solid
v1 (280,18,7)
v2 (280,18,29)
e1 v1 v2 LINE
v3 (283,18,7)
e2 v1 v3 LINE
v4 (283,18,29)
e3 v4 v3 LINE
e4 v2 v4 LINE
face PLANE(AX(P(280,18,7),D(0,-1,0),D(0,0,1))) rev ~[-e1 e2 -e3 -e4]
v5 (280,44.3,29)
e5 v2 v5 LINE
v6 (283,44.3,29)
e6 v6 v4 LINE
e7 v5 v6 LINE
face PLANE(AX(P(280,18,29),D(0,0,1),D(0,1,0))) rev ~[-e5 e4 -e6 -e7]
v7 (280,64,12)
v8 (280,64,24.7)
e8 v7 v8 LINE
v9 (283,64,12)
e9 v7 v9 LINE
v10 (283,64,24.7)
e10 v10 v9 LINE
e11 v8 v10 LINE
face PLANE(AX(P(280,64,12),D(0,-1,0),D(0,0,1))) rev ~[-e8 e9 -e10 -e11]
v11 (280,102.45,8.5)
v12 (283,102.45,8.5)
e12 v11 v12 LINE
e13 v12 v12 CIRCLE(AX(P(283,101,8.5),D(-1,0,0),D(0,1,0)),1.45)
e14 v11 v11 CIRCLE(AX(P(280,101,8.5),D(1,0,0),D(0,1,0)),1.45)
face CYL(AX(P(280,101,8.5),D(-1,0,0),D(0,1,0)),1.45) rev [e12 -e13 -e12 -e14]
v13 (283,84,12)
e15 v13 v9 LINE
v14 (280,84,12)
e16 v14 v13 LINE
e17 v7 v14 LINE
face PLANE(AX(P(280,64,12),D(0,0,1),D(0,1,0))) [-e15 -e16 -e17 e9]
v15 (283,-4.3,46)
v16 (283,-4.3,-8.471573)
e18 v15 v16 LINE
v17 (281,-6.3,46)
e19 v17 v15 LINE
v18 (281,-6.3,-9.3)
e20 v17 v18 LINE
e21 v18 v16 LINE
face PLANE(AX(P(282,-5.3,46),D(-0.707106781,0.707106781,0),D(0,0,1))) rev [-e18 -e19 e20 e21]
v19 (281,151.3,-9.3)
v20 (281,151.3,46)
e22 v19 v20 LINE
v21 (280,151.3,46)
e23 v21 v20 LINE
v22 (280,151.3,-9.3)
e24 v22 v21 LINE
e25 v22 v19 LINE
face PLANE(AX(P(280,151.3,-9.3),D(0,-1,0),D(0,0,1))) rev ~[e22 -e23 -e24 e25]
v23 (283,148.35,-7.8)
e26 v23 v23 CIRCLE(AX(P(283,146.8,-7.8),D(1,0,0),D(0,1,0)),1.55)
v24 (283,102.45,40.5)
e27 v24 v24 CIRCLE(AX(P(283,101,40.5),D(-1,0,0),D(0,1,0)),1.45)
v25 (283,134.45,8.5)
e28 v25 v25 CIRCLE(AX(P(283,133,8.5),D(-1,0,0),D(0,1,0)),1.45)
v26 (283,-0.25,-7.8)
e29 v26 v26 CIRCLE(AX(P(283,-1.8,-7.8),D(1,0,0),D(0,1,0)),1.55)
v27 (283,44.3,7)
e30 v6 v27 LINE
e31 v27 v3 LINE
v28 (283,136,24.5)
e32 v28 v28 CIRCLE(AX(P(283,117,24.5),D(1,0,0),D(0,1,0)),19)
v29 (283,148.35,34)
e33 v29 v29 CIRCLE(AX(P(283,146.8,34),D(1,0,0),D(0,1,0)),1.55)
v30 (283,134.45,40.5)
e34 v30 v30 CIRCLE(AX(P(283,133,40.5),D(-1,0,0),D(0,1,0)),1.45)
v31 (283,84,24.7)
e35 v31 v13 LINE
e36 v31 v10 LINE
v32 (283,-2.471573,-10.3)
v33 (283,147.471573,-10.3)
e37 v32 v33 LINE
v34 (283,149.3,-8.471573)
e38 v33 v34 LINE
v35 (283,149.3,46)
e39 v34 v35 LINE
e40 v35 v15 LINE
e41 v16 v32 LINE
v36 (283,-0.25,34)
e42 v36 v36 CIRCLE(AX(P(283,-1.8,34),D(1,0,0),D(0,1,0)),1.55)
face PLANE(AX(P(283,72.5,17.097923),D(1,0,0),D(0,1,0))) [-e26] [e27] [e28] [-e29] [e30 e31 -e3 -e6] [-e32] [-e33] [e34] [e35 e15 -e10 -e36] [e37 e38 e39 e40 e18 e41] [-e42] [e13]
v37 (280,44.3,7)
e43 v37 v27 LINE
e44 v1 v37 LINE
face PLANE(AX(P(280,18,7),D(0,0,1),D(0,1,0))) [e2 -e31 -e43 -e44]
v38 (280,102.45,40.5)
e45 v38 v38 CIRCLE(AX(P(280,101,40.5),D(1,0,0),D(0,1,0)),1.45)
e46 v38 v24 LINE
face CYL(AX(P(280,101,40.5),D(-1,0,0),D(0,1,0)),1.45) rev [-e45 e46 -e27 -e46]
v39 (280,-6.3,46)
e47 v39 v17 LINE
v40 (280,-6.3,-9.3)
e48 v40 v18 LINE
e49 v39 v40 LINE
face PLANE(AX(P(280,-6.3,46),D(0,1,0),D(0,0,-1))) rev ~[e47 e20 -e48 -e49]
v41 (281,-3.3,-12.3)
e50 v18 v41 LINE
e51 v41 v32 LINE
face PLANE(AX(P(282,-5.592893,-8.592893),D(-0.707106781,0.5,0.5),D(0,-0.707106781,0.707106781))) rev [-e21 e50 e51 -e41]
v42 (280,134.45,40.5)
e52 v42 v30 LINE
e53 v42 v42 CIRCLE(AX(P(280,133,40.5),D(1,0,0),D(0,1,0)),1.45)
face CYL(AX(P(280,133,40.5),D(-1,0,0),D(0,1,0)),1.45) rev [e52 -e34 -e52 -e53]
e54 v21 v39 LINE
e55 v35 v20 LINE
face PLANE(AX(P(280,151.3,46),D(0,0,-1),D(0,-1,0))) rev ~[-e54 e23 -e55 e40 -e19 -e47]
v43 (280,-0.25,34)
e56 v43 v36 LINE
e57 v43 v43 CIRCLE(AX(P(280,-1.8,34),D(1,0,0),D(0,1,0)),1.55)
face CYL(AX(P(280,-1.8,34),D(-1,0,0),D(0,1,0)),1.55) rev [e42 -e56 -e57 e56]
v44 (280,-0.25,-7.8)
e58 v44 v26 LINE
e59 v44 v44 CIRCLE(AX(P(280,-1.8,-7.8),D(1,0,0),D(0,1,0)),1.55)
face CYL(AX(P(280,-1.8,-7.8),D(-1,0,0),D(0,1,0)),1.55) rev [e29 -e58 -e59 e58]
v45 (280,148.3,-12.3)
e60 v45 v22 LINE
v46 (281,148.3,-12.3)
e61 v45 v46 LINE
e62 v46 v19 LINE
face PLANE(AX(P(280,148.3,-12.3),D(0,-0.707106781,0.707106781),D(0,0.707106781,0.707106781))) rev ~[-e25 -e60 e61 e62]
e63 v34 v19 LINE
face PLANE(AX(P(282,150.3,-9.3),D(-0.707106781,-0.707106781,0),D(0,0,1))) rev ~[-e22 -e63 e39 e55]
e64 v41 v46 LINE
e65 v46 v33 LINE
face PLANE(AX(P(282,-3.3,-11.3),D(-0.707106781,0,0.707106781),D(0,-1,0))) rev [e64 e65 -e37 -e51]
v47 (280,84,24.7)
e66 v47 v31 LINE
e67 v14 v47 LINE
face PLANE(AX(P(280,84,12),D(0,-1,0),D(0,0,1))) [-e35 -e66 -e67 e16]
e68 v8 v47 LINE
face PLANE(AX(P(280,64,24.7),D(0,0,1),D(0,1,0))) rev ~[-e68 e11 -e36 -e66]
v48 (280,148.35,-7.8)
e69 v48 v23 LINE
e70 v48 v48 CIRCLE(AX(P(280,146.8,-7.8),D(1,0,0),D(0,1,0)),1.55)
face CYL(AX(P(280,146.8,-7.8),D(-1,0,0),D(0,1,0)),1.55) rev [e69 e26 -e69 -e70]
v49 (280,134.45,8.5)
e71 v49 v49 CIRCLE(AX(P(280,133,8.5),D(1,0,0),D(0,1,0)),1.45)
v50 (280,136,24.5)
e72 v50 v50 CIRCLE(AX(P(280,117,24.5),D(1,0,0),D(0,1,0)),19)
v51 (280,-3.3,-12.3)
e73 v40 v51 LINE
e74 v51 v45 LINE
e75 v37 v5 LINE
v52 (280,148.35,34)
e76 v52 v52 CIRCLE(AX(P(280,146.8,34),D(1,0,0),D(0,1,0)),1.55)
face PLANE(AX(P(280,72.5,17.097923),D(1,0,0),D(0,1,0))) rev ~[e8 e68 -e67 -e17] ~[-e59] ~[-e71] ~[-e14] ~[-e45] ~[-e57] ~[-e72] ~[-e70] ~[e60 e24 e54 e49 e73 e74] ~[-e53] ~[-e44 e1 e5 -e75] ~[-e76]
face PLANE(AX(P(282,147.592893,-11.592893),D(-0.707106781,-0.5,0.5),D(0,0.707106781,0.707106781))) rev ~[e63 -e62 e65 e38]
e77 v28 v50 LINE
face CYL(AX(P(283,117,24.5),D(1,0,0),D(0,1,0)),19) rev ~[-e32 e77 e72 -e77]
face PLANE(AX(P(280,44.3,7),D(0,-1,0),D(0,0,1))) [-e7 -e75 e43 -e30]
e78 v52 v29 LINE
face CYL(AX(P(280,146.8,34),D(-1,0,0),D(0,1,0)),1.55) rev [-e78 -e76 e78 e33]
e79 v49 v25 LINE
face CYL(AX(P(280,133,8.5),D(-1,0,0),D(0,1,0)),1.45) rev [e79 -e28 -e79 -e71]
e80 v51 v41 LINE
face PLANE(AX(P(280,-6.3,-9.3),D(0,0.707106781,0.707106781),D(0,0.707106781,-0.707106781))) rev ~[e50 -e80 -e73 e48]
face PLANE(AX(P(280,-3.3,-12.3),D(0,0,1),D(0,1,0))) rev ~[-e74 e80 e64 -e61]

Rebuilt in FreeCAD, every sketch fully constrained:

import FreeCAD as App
import Part
import Sketcher
from FreeCAD import Vector
Q = App.Units.Quantity


def edges_at(feature, points):
    """Names of the edges that pass closest to the given points."""
    edges = feature.Shape.Edges
    near = lambda p: min(range(len(edges)), key=lambda i: edges[i].distToShape(Part.Vertex(*p))[0])
    return sorted({f"Edge{near(p) + 1}" for p in points})


def add_polygon(sketch, points):
    """Adds a closed chain of lines whose ends are joined by coincident constraints."""
    first, n = sketch.GeometryCount, len(points)
    for a, b in zip(points, points[1:] + points[:1]):
        sketch.addGeometry(Part.LineSegment(App.Vector(*a, 0), App.Vector(*b, 0)), False)
    for i in range(n):
        sketch.addConstraint(Sketcher.Constraint("Coincident", first + i, 2, first + (i + 1) % n, 1))

doc = App.newDocument("Part")
body = doc.addObject("PartDesign::Body", "Body")

# Sketch on YZ plane
sketch1 = doc.addObject("Sketcher::SketchObject", "Sketch")
body.addObject(sketch1)
sketch1.AttachmentSupport = (doc.YZ_Plane, [""])
sketch1.MapMode = "FlatFace"
sketch1.AttachmentOffset = App.Placement(Vector(0, 0, 280), App.Rotation())
add_polygon(sketch1, [(-6.3, -9.3), (-3.3, -12.3), (148.3, -12.3), (151.3, -9.3), (151.3, 46), (-6.3, 46)])  # lines 0-5
sketch1.addGeometry(Part.Circle(Vector(-1.8, -7.8, 0), Vector(0, 0, 1), 1.55), False)  # 6
sketch1.addGeometry(Part.Circle(Vector(146.8, -7.8, 0), Vector(0, 0, 1), 1.55), False)  # 7
sketch1.addGeometry(Part.Circle(Vector(-1.8, 34, 0), Vector(0, 0, 1), 1.55), False)  # 8
sketch1.addGeometry(Part.Circle(Vector(146.8, 34, 0), Vector(0, 0, 1), 1.55), False)  # 9
sketch1.addConstraint(Sketcher.Constraint("Horizontal", 1))
sketch1.addConstraint(Sketcher.Constraint("Vertical", 3))
sketch1.addConstraint(Sketcher.Constraint("Horizontal", 4))
sketch1.addConstraint(Sketcher.Constraint("Vertical", 5))
sketch1.addConstraint(Sketcher.Constraint("Equal", 6, 7))
sketch1.addConstraint(Sketcher.Constraint("Equal", 7, 8))
sketch1.addConstraint(Sketcher.Constraint("Equal", 8, 9))
sketch1.addConstraint(Sketcher.Constraint("Perpendicular", 0, 2))
sketch1.addConstraint(Sketcher.Constraint("Horizontal", 6, 3, 7, 3))
sketch1.addConstraint(Sketcher.Constraint("Horizontal", 8, 3, 9, 3))
sketch1.addConstraint(Sketcher.Constraint("Horizontal", 2, 2, 5, 2))
sketch1.addConstraint(Sketcher.Constraint("Vertical", 6, 3, 8, 3))
sketch1.addConstraint(Sketcher.Constraint("Vertical", 7, 3, 9, 3))
sketch1.addConstraint(Sketcher.Constraint("Equal", 0, 2))
sketch1.addConstraint(Sketcher.Constraint("Diameter", 6, Q("3.1 mm")))
sketch1.addConstraint(Sketcher.Constraint("DistanceX", 1, 1, 1, 2, Q("151.6 mm")))
sketch1.addConstraint(Sketcher.Constraint("DistanceX", 4, 2, 4, 1, Q("157.6 mm")))
sketch1.addConstraint(Sketcher.Constraint("DistanceY", 3, 1, 3, 2, Q("55.3 mm")))
sketch1.addConstraint(Sketcher.Constraint("DistanceY", -1, 1, 8, 3, Q("34 mm")))
sketch1.addConstraint(Sketcher.Constraint("DistanceY", -1, 1, 3, 2, Q("46 mm")))
sketch1.addConstraint(Sketcher.Constraint("DistanceX", 6, 3, -1, 1, Q("1.8 mm")))
sketch1.addConstraint(Sketcher.Constraint("DistanceY", 6, 3, -1, 1, Q("7.8 mm")))
sketch1.addConstraint(Sketcher.Constraint("DistanceX", -1, 1, 7, 3, Q("146.8 mm")))
sketch1.addConstraint(Sketcher.Constraint("DistanceX", 0, 2, -1, 1, Q("3.3 mm")))
pad1 = doc.addObject("PartDesign::Pad", "Pad")
body.addObject(pad1)
pad1.Profile = sketch1
pad1.Length = 3

# Sketch on YZ plane
sketch2 = doc.addObject("Sketcher::SketchObject", "Sketch001")
body.addObject(sketch2)
sketch2.AttachmentSupport = (doc.YZ_Plane, [""])
sketch2.MapMode = "FlatFace"
sketch2.AttachmentOffset = App.Placement(Vector(0, 0, 280), App.Rotation())
sketch2.addGeometry(Part.Circle(Vector(101, 40.5, 0), Vector(0, 0, 1), 1.45), False)  # 0
sketch2.addGeometry(Part.Circle(Vector(133, 40.5, 0), Vector(0, 0, 1), 1.45), False)  # 1
sketch2.addGeometry(Part.Circle(Vector(101, 8.5, 0), Vector(0, 0, 1), 1.45), False)  # 2
sketch2.addGeometry(Part.Circle(Vector(133, 8.5, 0), Vector(0, 0, 1), 1.45), False)  # 3
add_polygon(sketch2, [(18, 29), (18, 7), (44.3, 7), (44.3, 29)])  # lines 4-7
add_polygon(sketch2, [(64, 24.7), (64, 12), (84, 12), (84, 24.7)])  # lines 8-11
sketch2.addConstraint(Sketcher.Constraint("Vertical", 4))
sketch2.addConstraint(Sketcher.Constraint("Horizontal", 5))
sketch2.addConstraint(Sketcher.Constraint("Vertical", 6))
sketch2.addConstraint(Sketcher.Constraint("Horizontal", 7))
sketch2.addConstraint(Sketcher.Constraint("Vertical", 8))
sketch2.addConstraint(Sketcher.Constraint("Horizontal", 9))
sketch2.addConstraint(Sketcher.Constraint("Vertical", 10))
sketch2.addConstraint(Sketcher.Constraint("Horizontal", 11))
sketch2.addConstraint(Sketcher.Constraint("Equal", 0, 1))
sketch2.addConstraint(Sketcher.Constraint("Equal", 1, 2))
sketch2.addConstraint(Sketcher.Constraint("Equal", 2, 3))
sketch2.addConstraint(Sketcher.Constraint("Horizontal", 0, 3, 1, 3))
sketch2.addConstraint(Sketcher.Constraint("Horizontal", 2, 3, 3, 3))
sketch2.addConstraint(Sketcher.Constraint("Vertical", 0, 3, 2, 3))
sketch2.addConstraint(Sketcher.Constraint("Vertical", 1, 3, 3, 3))
sketch2.addConstraint(Sketcher.Constraint("Diameter", 0, Q("2.9 mm")))
sketch2.addConstraint(Sketcher.Constraint("DistanceX", 9, 1, 9, 2, Q("20 mm")))
sketch2.addConstraint(Sketcher.Constraint("DistanceY", 4, 2, 4, 1, Q("22 mm")))
sketch2.addConstraint(Sketcher.Constraint("DistanceX", 5, 1, 5, 2, Q("26.3 mm")))
sketch2.addConstraint(Sketcher.Constraint("DistanceY", 8, 2, 8, 1, Q("12.7 mm")))
sketch2.addConstraint(Sketcher.Constraint("DistanceX", -1, 1, 0, 3, Q("101 mm")))
sketch2.addConstraint(Sketcher.Constraint("DistanceX", -1, 1, 1, 3, Q("133 mm")))
sketch2.addConstraint(Sketcher.Constraint("DistanceX", -1, 1, 4, 2, Q("18 mm")))
sketch2.addConstraint(Sketcher.Constraint("DistanceY", -1, 1, 4, 2, Q("7 mm")))
sketch2.addConstraint(Sketcher.Constraint("DistanceX", -1, 1, 8, 2, Q("64 mm")))
sketch2.addConstraint(Sketcher.Constraint("DistanceY", -1, 1, 8, 2, Q("12 mm")))
sketch2.addConstraint(Sketcher.Constraint("DistanceY", 2, 3, 0, 3, Q("32 mm")))
sketch2.addConstraint(Sketcher.Constraint("DistanceY", -1, 1, 0, 3, Q("40.5 mm")))
pocket1 = doc.addObject("PartDesign::Pocket", "Pocket")
body.addObject(pocket1)
pocket1.Profile = sketch2
pocket1.Length = 5
pocket1.Reversed = True

# Sketch on YZ plane
sketch3 = doc.addObject("Sketcher::SketchObject", "Sketch002")
body.addObject(sketch3)
sketch3.AttachmentSupport = (doc.YZ_Plane, [""])
sketch3.MapMode = "FlatFace"
sketch3.AttachmentOffset = App.Placement(Vector(0, 0, 283), App.Rotation())
sketch3.addGeometry(Part.Circle(Vector(117, 24.5, 0), Vector(0, 0, 1), 19), False)
sketch3.addConstraint(Sketcher.Constraint("Diameter", 0, Q("38 mm")))
sketch3.addConstraint(Sketcher.Constraint("DistanceX", -1, 1, 0, 3, Q("117 mm")))
sketch3.addConstraint(Sketcher.Constraint("DistanceY", -1, 1, 0, 3, Q("24.5 mm")))
pocket2 = doc.addObject("PartDesign::Pocket", "Pocket001")
body.addObject(pocket2)
pocket2.Profile = sketch3
pocket2.Length = 5
doc.recompute()

chamfer = doc.addObject("PartDesign::Chamfer", "Chamfer")
body.addObject(chamfer)
chamfer.Base = (pocket2, edges_at(pocket2, [
    (283, -6.3, 18.35),
    (283, -4.8, -10.8),
    (283, 72.5, -12.3),
    (283, 149.8, -10.8),
    (283, 151.3, 18.35),
]))
chamfer.Size = 2

doc.recompute()
